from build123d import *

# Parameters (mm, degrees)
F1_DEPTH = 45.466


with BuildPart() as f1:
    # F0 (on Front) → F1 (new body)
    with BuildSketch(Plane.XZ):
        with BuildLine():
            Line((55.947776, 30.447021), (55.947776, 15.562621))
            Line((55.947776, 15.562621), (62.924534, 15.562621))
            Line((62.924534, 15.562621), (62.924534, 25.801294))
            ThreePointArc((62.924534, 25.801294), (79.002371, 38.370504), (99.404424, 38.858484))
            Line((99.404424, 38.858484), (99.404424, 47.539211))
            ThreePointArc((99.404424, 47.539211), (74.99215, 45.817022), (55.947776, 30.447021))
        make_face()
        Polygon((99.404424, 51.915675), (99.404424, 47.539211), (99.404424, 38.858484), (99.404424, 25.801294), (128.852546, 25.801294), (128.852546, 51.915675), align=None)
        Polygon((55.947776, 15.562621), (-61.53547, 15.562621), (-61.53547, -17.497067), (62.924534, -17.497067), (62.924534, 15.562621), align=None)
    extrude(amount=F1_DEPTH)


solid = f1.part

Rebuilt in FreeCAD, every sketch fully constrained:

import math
import FreeCAD as App
import Part
import Sketcher
Q = App.Units.Quantity

doc = App.newDocument("Part")
params = doc.addObject("Spreadsheet::Sheet", "Params")
for row, (alias, value) in enumerate([
    ("sketch1_width", "4.9000002 in"),
    ("sketch1_height", "0.586 in"),
    ("pad1_length", "1.79 in"),
], start=1):
    params.set(f"A{row}", alias)
    params.set(f"B{row}", "=" + value)
    params.setAlias(f"B{row}", alias)

body = doc.addObject("PartDesign::Body", "Body")

# Sketch on XZ plane
sketch1 = body.newObject("Sketcher::SketchObject", "Sketch")
sketch1.AttachmentSupport = (doc.getObject("XZ_Plane"), [""])
sketch1.MapMode = "FlatFace"
sketch1.addGeometry([
    Part.LineSegment(App.Vector(55.947776, 30.447021, 0), App.Vector(55.947776, 15.562621, 0)),  # 0
    Part.LineSegment(App.Vector(55.947776, 15.562621, 0), App.Vector(-61.53547, 15.562621, 0)),  # 1
    Part.LineSegment(App.Vector(-61.53547, 15.562621, 0), App.Vector(-61.53547, -17.497067, 0)),  # 2
    Part.LineSegment(App.Vector(-61.53547, -17.497067, 0), App.Vector(62.924534, -17.497067, 0)),  # 3
    Part.LineSegment(App.Vector(62.924534, -17.497067, 0), App.Vector(62.924534, 25.801294, 0)),  # 4
    Part.ArcOfCircle(Part.Circle(App.Vector(89.940138, 7.811975, 0), App.Vector(0, 0, 1), 32.457025), math.radians(73.046566), math.radians(146.3409)),  # 5
    Part.LineSegment(App.Vector(99.404424, 38.858484, 0), App.Vector(99.404424, 25.801294, 0)),  # 6
    Part.LineSegment(App.Vector(99.404424, 25.801294, 0), App.Vector(128.852546, 25.801294, 0)),  # 7
    Part.LineSegment(App.Vector(128.852546, 25.801294, 0), App.Vector(128.852546, 51.915675, 0)),  # 8
    Part.LineSegment(App.Vector(128.852546, 51.915675, 0), App.Vector(99.404424, 51.915675, 0)),  # 9
    Part.LineSegment(App.Vector(99.404424, 51.915675, 0), App.Vector(99.404424, 47.539211, 0)),  # 10
    Part.ArcOfCircle(Part.Circle(App.Vector(89.940139, 7.811972, 0), App.Vector(0, 0, 1), 40.839028), math.radians(76.600107), math.radians(146.340898)),  # 11
], False)
sketch1.addConstraint([
    Sketcher.Constraint("Coincident", 0, 2, 1, 1),
    Sketcher.Constraint("Coincident", 1, 2, 2, 1),
    Sketcher.Constraint("Coincident", 2, 2, 3, 1),
    Sketcher.Constraint("Coincident", 3, 2, 4, 1),
    Sketcher.Constraint("Coincident", 4, 2, 5, 2),
    Sketcher.Constraint("Coincident", 5, 1, 6, 1),
    Sketcher.Constraint("Coincident", 6, 2, 7, 1),
    Sketcher.Constraint("Coincident", 7, 2, 8, 1),
    Sketcher.Constraint("Coincident", 8, 2, 9, 1),
    Sketcher.Constraint("Coincident", 9, 2, 10, 1),
    Sketcher.Constraint("Coincident", 10, 2, 11, 1),
    Sketcher.Constraint("Coincident", 11, 2, 0, 1),
    Sketcher.Constraint("Vertical", 0),
    Sketcher.Constraint("Horizontal", 1),
    Sketcher.Constraint("Vertical", 2),
    Sketcher.Constraint("Horizontal", 3),
    Sketcher.Constraint("Vertical", 4),
    Sketcher.Constraint("Vertical", 6),
    Sketcher.Constraint("Horizontal", 7),
    Sketcher.Constraint("Vertical", 8),
    Sketcher.Constraint("Horizontal", 9),
    Sketcher.Constraint("Vertical", 10),
    Sketcher.Constraint("Coincident", 11, 3, 5, 3),
    Sketcher.Constraint("Horizontal", 4, 2, 6, 2),
    Sketcher.Constraint("Vertical", 6, 2, 9, 2),
    Sketcher.Constraint("DistanceX", 3, 1, 3, 2, Q("4.9000002 in")),
    Sketcher.Constraint("DistanceY", 0, 2, 0, 1, Q("0.586 in")),
    Sketcher.Constraint("Radius", 5, 32.457025),
    Sketcher.Constraint("Radius", 11, 40.839028),
    Sketcher.Constraint("DistanceX", 7, 1, 7, 2, 29.448122),
    Sketcher.Constraint("DistanceY", 4, 1, 4, 2, 43.298361),
    Sketcher.Constraint("DistanceY", 6, 2, 6, 1, 13.05719),
    Sketcher.Constraint("DistanceY", 8, 1, 8, 2, 26.114381),
    Sketcher.Constraint("DistanceY", 5, 3, 8, 2, 44.1037),
    Sketcher.Constraint("DistanceX", 1, 2, 1, 1, 117.483246),
    Sketcher.Constraint("DistanceX", -1, 1, 11, 3, 89.940139),
    Sketcher.Constraint("DistanceY", -1, 1, 0, 2, 15.562621),
])
sketch1.setExpression("Constraints[25]", "Params.sketch1_width")
sketch1.setExpression("Constraints[26]", "Params.sketch1_height")
pad1 = body.newObject("PartDesign::Pad", "Pad")
pad1.Profile = sketch1
pad1.setExpression("Length", "Params.pad1_length")

doc.recompute()
